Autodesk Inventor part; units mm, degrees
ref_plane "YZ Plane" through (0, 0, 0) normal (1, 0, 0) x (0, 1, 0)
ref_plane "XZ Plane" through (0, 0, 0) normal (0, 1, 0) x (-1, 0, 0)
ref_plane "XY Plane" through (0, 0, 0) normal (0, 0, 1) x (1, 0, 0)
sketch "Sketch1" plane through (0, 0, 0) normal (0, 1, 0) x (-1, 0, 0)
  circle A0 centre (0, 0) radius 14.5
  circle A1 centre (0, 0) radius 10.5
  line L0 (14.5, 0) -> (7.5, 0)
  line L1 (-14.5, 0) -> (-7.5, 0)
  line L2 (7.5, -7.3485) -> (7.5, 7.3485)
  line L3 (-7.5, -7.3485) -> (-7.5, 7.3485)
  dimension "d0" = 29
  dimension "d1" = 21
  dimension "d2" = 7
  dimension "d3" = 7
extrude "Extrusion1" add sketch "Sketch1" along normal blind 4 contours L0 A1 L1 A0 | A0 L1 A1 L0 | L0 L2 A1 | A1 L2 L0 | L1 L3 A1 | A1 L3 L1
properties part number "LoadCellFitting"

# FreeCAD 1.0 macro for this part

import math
import FreeCAD as App
import Part
import Sketcher

doc = App.newDocument("Part")
body = doc.addObject("PartDesign::Body", "Body")

# Sketch on XZ plane
sketch1 = body.newObject("Sketcher::SketchObject", "Sketch")
sketch1.AttachmentSupport = (doc.getObject("XZ_Plane"), [""])
sketch1.MapMode = "FlatFace"
sketch1.addGeometry(Part.Circle(App.Vector(0, 0, 0), App.Vector(0, 0, 1), 14), False)
sketch1.addGeometry(Part.ArcOfCircle(Part.Circle(App.Vector(0, 0, 0), App.Vector(0, 0, 1), 10), math.radians(44), math.radians(136)), False)
sketch1.addGeometry(Part.LineSegment(App.Vector(-8, 7, 0), App.Vector(-8, -7, 0)), False)
sketch1.addGeometry(Part.ArcOfCircle(Part.Circle(App.Vector(0, 0, 0), App.Vector(0, 0, 1), 10), math.radians(-136), math.radians(-44)), False)
sketch1.addGeometry(Part.LineSegment(App.Vector(8, -7, 0), App.Vector(8, 7, 0)), False)
sketch1.addConstraint(Sketcher.Constraint("Coincident", 1, 2, 2, 1))
sketch1.addConstraint(Sketcher.Constraint("Coincident", 2, 2, 3, 1))
sketch1.addConstraint(Sketcher.Constraint("Coincident", 3, 2, 4, 1))
sketch1.addConstraint(Sketcher.Constraint("Coincident", 4, 2, 1, 1))
sketch1.addConstraint(Sketcher.Constraint("Vertical", 2))
sketch1.addConstraint(Sketcher.Constraint("Vertical", 4))
sketch1.addConstraint(Sketcher.Constraint("Coincident", 0, 3, -1, 1))
sketch1.addConstraint(Sketcher.Constraint("Coincident", 1, 3, -1, 1))
sketch1.addConstraint(Sketcher.Constraint("Coincident", 3, 3, -1, 1))
sketch1.addConstraint(Sketcher.Constraint("Equal", 1, 3))
sketch1.addConstraint(Sketcher.Constraint("Horizontal", 2, 2, 3, 2))
sketch1.addConstraint(Sketcher.Constraint("Diameter", 0, 29.0))
sketch1.addConstraint(Sketcher.Constraint("Radius", 1, 10.5))
sketch1.addConstraint(Sketcher.Constraint("DistanceX", 2, 2, 3, 2, 15.0))
pad1 = body.newObject("PartDesign::Pad", "Pad")
pad1.Profile = sketch1
pad1.Length = 4
pad1.Reversed = True

doc.recompute()
